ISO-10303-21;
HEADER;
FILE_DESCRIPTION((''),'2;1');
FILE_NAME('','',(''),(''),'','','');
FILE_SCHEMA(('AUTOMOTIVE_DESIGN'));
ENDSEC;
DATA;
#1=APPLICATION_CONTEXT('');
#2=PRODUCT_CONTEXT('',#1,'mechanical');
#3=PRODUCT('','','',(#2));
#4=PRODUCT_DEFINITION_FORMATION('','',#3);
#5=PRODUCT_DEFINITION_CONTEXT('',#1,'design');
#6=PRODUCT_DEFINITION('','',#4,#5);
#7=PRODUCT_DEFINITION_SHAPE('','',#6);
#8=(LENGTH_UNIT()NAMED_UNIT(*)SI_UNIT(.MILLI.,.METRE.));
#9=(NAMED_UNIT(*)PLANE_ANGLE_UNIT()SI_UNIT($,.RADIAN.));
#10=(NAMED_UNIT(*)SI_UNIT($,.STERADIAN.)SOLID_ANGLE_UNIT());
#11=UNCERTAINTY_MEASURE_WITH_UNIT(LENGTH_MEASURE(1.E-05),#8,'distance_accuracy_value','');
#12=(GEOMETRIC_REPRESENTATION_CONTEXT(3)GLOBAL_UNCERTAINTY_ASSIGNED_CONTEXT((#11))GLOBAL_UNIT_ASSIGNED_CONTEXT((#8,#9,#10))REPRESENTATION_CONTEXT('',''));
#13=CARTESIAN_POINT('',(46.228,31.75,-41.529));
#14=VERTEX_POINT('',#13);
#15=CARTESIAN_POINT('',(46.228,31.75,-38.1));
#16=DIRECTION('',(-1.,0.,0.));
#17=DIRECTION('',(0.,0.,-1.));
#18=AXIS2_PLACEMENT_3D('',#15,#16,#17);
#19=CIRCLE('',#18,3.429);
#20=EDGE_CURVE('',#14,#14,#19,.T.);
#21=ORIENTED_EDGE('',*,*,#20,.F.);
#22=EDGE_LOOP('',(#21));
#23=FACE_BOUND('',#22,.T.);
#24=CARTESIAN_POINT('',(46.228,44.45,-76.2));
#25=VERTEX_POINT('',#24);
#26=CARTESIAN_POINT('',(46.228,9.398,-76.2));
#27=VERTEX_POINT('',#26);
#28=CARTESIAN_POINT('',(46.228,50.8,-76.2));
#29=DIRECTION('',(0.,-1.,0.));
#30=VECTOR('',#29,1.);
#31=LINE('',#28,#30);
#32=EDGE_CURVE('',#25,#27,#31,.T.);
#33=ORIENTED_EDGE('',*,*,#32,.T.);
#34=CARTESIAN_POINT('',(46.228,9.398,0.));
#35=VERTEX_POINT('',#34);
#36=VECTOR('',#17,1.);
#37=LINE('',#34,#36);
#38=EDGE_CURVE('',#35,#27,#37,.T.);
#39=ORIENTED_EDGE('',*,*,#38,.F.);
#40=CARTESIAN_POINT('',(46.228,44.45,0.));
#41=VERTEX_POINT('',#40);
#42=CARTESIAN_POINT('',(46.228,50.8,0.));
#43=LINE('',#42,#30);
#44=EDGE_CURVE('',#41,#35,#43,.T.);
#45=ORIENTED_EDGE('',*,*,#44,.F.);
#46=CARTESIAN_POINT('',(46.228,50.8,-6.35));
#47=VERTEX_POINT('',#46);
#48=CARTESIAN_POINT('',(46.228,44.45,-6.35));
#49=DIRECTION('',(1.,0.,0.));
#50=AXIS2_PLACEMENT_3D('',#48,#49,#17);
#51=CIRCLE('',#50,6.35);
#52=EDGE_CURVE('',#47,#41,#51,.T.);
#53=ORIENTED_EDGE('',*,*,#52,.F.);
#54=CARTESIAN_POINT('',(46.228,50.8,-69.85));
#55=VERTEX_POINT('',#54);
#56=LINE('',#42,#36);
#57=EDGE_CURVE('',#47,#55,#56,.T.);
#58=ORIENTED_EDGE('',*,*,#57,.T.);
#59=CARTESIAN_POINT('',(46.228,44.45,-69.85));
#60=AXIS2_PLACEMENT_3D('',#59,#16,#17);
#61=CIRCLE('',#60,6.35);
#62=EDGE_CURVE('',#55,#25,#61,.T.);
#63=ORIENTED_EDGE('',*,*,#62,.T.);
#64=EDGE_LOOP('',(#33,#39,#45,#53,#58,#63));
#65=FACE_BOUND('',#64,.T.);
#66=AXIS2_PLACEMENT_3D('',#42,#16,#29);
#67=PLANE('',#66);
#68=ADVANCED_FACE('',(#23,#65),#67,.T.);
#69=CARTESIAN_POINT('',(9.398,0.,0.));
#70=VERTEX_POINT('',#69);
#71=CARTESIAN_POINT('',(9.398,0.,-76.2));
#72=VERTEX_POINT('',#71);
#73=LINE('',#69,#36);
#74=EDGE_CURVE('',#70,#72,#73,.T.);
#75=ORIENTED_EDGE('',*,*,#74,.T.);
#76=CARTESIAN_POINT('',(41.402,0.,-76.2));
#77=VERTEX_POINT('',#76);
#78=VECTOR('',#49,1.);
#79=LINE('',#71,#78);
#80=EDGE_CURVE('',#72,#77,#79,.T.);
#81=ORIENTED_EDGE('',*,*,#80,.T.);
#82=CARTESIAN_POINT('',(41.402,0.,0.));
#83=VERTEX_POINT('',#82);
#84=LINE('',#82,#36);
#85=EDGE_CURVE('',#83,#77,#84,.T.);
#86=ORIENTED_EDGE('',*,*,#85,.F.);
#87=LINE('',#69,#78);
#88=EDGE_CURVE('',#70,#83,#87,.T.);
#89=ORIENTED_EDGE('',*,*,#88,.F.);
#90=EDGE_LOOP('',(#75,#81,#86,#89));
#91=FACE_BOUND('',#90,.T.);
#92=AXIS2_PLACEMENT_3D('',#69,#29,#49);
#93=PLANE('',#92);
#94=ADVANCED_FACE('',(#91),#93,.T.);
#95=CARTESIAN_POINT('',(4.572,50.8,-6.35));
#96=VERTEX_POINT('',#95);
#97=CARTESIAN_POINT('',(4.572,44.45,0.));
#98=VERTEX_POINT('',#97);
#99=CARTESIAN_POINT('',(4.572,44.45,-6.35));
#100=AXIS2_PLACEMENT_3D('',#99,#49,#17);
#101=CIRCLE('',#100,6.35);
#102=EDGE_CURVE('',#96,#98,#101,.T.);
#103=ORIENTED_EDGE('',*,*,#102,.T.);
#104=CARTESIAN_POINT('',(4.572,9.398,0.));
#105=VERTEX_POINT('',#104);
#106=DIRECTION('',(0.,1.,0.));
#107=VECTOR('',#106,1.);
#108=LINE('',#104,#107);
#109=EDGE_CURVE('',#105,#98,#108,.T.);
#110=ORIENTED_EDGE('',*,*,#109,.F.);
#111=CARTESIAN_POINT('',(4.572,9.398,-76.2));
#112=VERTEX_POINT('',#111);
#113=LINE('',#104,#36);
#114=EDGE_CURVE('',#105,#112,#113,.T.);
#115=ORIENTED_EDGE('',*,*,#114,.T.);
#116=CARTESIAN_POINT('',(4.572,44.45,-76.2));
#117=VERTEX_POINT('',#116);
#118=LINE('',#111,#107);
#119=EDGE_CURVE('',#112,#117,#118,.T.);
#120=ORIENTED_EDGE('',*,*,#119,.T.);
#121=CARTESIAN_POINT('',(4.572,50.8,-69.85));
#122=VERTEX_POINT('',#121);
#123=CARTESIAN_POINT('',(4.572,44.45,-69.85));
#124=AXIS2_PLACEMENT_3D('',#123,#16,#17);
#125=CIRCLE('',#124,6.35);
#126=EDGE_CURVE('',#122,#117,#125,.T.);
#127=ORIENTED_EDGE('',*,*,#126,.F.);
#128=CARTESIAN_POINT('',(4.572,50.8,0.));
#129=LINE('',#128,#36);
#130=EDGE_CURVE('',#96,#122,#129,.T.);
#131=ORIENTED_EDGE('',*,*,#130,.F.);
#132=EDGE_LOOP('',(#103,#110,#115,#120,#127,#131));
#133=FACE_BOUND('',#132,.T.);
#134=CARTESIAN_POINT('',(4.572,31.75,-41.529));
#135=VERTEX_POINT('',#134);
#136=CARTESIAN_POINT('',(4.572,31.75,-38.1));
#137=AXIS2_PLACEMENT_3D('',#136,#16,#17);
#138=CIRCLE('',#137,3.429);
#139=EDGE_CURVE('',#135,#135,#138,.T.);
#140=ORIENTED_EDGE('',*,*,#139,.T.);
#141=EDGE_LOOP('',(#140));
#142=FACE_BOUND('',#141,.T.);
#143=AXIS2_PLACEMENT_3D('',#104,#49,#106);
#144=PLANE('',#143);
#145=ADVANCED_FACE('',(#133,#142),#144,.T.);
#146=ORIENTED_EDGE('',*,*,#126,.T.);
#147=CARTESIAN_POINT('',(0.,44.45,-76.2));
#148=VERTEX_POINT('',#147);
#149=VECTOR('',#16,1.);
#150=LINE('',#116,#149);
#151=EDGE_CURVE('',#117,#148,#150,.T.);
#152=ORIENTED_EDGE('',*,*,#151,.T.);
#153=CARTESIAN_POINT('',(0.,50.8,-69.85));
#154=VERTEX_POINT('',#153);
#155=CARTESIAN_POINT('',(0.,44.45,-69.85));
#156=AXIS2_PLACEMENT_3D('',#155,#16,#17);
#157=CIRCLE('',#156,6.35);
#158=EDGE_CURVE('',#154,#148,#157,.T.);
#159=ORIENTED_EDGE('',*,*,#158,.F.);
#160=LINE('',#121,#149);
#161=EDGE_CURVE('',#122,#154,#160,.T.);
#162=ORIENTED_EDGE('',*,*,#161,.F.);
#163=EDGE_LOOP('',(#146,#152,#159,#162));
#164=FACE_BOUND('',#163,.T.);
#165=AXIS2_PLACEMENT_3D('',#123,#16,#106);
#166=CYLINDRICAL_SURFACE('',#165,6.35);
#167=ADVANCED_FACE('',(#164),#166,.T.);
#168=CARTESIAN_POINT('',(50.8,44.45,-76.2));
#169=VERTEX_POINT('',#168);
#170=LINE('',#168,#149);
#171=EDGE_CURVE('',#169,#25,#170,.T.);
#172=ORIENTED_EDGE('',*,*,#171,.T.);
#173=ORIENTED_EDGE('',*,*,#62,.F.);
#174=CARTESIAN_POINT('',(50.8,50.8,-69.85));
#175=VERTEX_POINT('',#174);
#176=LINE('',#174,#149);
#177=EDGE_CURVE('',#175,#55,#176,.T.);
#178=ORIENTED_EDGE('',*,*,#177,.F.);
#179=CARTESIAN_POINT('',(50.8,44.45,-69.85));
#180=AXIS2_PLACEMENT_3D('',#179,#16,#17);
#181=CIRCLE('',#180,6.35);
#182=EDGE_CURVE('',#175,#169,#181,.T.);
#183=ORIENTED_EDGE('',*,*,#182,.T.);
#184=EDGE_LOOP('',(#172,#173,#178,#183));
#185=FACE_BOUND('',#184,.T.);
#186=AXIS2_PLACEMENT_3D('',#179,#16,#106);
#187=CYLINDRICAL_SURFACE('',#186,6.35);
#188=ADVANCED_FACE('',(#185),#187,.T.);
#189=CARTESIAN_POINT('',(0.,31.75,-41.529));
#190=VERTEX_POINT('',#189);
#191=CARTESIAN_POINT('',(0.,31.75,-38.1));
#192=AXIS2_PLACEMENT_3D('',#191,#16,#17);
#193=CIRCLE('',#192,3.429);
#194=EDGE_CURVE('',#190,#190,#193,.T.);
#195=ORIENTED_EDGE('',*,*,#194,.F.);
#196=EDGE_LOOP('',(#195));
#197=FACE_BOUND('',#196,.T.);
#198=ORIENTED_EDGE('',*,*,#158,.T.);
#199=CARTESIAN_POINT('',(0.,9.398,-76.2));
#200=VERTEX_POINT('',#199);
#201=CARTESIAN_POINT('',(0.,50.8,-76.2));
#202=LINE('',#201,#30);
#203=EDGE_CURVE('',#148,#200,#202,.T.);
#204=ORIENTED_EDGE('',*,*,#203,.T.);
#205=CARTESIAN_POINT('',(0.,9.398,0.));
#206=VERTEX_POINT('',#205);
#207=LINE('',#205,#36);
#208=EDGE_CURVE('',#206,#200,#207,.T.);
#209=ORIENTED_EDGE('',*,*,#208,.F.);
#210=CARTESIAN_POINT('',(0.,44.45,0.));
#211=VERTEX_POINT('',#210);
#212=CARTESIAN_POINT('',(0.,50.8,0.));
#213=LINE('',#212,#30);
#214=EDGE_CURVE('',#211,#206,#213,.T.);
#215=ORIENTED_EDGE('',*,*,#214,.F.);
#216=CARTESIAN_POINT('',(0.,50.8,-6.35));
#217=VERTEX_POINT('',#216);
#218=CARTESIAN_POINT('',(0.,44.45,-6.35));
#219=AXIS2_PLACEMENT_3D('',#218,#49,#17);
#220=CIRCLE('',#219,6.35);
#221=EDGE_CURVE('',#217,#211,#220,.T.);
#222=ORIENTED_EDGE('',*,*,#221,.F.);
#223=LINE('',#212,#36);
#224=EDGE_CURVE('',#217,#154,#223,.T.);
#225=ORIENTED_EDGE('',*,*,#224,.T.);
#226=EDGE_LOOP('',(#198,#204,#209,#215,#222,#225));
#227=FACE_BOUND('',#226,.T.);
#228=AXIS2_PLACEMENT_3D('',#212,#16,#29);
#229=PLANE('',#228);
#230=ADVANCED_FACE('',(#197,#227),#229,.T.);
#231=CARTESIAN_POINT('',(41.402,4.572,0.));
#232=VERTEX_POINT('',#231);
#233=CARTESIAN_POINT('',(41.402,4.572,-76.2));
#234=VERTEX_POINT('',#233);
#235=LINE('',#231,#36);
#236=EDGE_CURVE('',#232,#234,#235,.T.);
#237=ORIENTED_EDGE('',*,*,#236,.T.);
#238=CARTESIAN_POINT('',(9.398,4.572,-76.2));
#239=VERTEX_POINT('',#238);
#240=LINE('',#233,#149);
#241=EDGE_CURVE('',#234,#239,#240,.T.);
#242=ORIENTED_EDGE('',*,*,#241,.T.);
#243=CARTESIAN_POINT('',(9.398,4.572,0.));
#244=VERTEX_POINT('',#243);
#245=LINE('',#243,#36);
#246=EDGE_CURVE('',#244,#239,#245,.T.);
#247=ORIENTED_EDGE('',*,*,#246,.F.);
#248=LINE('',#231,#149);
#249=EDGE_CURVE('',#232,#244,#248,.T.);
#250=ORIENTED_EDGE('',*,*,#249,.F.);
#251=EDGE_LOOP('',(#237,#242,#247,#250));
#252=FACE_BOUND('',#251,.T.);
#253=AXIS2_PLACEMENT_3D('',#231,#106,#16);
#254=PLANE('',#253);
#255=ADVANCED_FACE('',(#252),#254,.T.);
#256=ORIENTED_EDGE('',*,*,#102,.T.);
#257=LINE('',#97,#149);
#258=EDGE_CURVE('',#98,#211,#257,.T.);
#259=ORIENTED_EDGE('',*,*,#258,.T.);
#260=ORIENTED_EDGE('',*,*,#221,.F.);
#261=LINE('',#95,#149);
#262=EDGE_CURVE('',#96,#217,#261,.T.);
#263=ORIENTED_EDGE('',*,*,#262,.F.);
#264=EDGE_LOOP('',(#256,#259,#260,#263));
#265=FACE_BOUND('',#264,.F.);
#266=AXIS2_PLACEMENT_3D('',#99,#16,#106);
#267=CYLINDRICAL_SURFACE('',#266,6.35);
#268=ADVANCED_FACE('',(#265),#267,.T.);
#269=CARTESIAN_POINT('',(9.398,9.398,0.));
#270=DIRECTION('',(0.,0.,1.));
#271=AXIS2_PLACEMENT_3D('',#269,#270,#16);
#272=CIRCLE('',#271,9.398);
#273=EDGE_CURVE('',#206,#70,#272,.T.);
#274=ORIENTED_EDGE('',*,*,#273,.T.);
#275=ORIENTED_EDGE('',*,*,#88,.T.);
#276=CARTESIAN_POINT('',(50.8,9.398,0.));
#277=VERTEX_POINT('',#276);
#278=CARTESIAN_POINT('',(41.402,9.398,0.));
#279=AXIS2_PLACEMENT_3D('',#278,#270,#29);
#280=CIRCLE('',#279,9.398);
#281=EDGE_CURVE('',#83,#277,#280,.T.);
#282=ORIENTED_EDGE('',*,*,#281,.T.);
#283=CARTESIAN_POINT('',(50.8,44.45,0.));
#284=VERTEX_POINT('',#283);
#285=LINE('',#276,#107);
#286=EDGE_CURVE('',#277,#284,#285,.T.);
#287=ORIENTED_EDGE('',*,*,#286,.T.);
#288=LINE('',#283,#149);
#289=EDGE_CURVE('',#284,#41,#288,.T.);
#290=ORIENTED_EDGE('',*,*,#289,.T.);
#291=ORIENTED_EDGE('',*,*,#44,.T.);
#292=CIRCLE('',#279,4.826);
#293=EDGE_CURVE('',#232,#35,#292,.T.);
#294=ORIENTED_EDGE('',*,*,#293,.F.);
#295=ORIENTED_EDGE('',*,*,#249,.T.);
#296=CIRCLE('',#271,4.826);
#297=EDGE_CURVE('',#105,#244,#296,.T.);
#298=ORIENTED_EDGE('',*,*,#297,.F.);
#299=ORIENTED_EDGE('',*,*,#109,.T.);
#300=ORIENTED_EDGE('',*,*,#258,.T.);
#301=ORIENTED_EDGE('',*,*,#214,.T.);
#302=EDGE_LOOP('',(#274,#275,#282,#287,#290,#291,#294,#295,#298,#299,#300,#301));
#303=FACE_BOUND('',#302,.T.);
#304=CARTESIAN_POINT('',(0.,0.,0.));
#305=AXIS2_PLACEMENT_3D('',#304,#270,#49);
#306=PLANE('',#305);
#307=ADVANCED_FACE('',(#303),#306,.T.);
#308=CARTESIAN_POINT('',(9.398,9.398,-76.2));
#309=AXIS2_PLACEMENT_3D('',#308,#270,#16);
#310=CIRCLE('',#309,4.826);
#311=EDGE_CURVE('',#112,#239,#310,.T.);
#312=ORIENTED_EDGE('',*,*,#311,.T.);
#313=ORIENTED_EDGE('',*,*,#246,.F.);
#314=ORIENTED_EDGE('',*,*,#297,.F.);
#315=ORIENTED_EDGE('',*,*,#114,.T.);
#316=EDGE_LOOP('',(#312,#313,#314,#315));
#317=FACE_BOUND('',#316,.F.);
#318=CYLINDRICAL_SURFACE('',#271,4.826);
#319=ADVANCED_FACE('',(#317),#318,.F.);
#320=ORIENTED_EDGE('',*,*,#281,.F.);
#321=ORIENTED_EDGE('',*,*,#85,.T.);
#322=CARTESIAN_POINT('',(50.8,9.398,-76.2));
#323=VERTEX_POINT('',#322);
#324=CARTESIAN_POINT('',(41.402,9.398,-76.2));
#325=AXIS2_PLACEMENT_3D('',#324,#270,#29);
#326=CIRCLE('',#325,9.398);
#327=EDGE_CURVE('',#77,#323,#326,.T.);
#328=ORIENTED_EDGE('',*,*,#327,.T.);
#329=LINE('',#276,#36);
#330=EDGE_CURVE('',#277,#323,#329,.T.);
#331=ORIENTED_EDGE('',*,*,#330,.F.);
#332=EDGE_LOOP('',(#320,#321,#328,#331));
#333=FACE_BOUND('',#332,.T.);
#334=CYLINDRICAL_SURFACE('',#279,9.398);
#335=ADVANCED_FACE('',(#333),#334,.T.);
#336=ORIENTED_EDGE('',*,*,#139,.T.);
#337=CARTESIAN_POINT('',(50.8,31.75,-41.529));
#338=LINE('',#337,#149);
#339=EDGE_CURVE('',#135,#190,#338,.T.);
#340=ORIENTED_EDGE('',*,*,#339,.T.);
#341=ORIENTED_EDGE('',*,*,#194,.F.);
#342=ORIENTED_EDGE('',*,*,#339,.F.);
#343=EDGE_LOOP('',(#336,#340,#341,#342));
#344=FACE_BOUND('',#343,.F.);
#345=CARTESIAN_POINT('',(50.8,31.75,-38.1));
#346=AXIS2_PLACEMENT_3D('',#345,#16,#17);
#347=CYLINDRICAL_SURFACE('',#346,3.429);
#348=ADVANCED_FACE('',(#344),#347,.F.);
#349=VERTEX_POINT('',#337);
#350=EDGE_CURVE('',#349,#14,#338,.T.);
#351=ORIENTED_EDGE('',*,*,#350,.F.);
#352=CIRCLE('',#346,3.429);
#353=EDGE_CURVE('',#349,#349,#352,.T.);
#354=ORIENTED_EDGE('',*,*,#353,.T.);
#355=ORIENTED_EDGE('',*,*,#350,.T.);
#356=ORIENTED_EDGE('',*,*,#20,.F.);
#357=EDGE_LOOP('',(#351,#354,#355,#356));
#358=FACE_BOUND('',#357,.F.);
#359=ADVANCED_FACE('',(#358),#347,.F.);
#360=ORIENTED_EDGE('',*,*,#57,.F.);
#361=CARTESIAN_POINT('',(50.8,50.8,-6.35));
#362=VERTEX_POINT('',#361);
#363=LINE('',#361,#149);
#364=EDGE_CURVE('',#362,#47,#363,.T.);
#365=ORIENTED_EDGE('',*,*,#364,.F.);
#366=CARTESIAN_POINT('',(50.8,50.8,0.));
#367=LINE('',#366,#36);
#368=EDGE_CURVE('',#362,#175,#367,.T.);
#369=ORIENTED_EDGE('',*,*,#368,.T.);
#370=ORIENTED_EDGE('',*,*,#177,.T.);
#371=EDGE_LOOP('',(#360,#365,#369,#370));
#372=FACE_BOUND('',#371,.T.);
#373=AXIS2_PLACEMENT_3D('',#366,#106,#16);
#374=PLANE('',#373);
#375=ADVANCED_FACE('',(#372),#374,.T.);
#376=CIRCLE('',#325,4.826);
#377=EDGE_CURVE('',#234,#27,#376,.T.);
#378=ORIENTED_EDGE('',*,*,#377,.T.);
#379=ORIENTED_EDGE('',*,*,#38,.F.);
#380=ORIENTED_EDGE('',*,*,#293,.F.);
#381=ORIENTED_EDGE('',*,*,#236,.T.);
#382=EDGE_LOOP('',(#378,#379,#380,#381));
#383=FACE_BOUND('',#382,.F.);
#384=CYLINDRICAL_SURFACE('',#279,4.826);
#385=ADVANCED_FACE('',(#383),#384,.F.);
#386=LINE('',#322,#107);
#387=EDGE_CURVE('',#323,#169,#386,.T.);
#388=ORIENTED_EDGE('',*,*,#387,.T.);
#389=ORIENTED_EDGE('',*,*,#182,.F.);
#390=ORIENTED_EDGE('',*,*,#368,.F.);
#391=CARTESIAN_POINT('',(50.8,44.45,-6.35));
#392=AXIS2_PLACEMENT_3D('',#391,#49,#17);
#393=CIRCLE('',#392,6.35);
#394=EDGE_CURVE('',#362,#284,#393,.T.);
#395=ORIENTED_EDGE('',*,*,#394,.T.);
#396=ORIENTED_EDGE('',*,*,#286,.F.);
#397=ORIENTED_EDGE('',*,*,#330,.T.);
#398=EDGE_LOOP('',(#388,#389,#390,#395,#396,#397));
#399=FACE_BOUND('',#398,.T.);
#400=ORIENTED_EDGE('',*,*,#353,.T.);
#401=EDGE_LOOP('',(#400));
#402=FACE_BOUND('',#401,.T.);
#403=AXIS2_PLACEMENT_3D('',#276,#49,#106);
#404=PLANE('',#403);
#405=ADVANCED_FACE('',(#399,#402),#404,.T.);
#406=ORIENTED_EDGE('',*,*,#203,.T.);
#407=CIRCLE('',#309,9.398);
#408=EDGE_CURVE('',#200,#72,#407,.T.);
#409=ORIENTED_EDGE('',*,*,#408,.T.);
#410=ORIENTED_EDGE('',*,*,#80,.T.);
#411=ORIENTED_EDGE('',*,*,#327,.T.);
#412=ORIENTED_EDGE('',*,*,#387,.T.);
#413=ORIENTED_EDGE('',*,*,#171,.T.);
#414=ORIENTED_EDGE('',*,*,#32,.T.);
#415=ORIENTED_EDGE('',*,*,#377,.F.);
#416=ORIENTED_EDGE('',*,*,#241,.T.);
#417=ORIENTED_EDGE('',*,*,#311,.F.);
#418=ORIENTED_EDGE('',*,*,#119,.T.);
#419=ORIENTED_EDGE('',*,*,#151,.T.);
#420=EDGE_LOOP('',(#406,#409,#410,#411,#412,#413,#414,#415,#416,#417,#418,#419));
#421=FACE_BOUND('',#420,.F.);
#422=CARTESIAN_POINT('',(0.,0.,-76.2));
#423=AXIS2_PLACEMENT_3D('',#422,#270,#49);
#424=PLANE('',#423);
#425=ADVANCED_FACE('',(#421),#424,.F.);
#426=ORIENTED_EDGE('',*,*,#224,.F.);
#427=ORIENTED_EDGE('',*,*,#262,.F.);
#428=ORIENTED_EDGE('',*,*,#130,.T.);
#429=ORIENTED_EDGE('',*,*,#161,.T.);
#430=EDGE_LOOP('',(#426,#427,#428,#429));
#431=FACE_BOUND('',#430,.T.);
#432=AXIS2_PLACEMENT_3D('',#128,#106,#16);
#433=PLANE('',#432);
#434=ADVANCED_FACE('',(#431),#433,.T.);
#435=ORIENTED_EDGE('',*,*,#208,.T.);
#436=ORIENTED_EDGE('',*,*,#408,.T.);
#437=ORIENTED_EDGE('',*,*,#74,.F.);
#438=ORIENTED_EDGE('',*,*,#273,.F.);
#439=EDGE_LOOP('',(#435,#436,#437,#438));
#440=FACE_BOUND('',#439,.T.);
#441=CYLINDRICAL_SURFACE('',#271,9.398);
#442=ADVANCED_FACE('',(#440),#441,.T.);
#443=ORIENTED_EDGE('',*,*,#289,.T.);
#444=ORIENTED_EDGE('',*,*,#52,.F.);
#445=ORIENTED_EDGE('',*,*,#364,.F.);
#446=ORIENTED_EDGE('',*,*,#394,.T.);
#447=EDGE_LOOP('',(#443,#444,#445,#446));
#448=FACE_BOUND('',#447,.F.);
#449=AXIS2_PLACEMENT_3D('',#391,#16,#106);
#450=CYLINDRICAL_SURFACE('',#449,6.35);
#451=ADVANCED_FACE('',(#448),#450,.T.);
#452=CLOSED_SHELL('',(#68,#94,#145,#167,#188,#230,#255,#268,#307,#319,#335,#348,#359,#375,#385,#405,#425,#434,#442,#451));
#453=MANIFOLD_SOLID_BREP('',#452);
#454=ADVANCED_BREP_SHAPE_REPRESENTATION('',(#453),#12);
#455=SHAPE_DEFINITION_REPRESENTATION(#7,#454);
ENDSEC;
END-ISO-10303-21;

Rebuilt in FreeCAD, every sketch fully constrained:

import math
import FreeCAD as App
import Part
import Sketcher
Q = App.Units.Quantity


def edges_at(feature, points):
    """Names of the edges that pass closest to the given points."""
    edges = feature.Shape.Edges
    near = lambda p: min(range(len(edges)), key=lambda i: edges[i].distToShape(Part.Vertex(*p))[0])
    return sorted({f"Edge{near(p) + 1}" for p in points})

doc = App.newDocument("Part")
body = doc.addObject("PartDesign::Body", "Body")

# Sketch on XY plane
sketch1 = body.newObject("Sketcher::SketchObject", "Sketch")
sketch1.AttachmentSupport = (doc.getObject("XY_Plane"), [""])
sketch1.MapMode = "FlatFace"
sketch1.addGeometry(Part.ArcOfCircle(Part.Circle(App.Vector(9.4, 9.4, 0), App.Vector(0, 0, 1), 9.4), math.radians(180), math.radians(270)), False)
sketch1.addGeometry(Part.LineSegment(App.Vector(9.4, 0, 0), App.Vector(41.4, 0, 0)), False)
sketch1.addGeometry(Part.ArcOfCircle(Part.Circle(App.Vector(41.4, 9.4, 0), App.Vector(0, 0, 1), 9.4), math.radians(-90), math.radians(0)), False)
sketch1.addGeometry(Part.LineSegment(App.Vector(50.8, 9.4, 0), App.Vector(50.8, 50.8, 0)), False)
sketch1.addGeometry(Part.LineSegment(App.Vector(50.8, 50.8, 0), App.Vector(46.2, 50.8, 0)), False)
sketch1.addGeometry(Part.LineSegment(App.Vector(46.2, 50.8, 0), App.Vector(46.2, 9.4, 0)), False)
sketch1.addGeometry(Part.ArcOfCircle(Part.Circle(App.Vector(41.4, 9.4, 0), App.Vector(0, 0, 1), 4.8), math.radians(-90), math.radians(0)), False)
sketch1.addGeometry(Part.LineSegment(App.Vector(41.4, 4.6, 0), App.Vector(9.4, 4.6, 0)), False)
sketch1.addGeometry(Part.ArcOfCircle(Part.Circle(App.Vector(9.4, 9.4, 0), App.Vector(0, 0, 1), 4.8), math.radians(180), math.radians(270)), False)
sketch1.addGeometry(Part.LineSegment(App.Vector(4.6, 9.4, 0), App.Vector(4.6, 50.8, 0)), False)
sketch1.addGeometry(Part.LineSegment(App.Vector(4.6, 50.8, 0), App.Vector(0, 50.8, 0)), False)
sketch1.addGeometry(Part.LineSegment(App.Vector(0, 50.8, 0), App.Vector(0, 9.4, 0)), False)
sketch1.addConstraint(Sketcher.Constraint("Tangent", 0, 2, 1, 1))
sketch1.addConstraint(Sketcher.Constraint("Tangent", 1, 2, 2, 1))
sketch1.addConstraint(Sketcher.Constraint("Tangent", 2, 2, 3, 1))
sketch1.addConstraint(Sketcher.Constraint("Coincident", 3, 2, 4, 1))
sketch1.addConstraint(Sketcher.Constraint("Coincident", 4, 2, 5, 1))
sketch1.addConstraint(Sketcher.Constraint("Tangent", 5, 2, 6, 2))
sketch1.addConstraint(Sketcher.Constraint("Tangent", 6, 1, 7, 1))
sketch1.addConstraint(Sketcher.Constraint("Tangent", 7, 2, 8, 2))
sketch1.addConstraint(Sketcher.Constraint("Tangent", 8, 1, 9, 1))
sketch1.addConstraint(Sketcher.Constraint("Coincident", 9, 2, 10, 1))
sketch1.addConstraint(Sketcher.Constraint("Coincident", 10, 2, 11, 1))
sketch1.addConstraint(Sketcher.Constraint("Tangent", 11, 2, 0, 1))
sketch1.addConstraint(Sketcher.Constraint("Horizontal", 1))
sketch1.addConstraint(Sketcher.Constraint("Vertical", 3))
sketch1.addConstraint(Sketcher.Constraint("Horizontal", 4))
sketch1.addConstraint(Sketcher.Constraint("Vertical", 5))
sketch1.addConstraint(Sketcher.Constraint("Horizontal", 7))
sketch1.addConstraint(Sketcher.Constraint("Vertical", 9))
sketch1.addConstraint(Sketcher.Constraint("Horizontal", 10))
sketch1.addConstraint(Sketcher.Constraint("Vertical", 11))
sketch1.addConstraint(Sketcher.Constraint("Coincident", 6, 3, 2, 3))
sketch1.addConstraint(Sketcher.Constraint("Coincident", 8, 3, 0, 3))
sketch1.addConstraint(Sketcher.Constraint("Equal", 0, 2))
sketch1.addConstraint(Sketcher.Constraint("PointOnObject", 0, 2, -1))
sketch1.addConstraint(Sketcher.Constraint("PointOnObject", 10, 2, -2))
sketch1.addConstraint(Sketcher.Constraint("Horizontal", 4, 2, 9, 2))
sketch1.addConstraint(Sketcher.Constraint("Radius", 0, Q("0.37 in")))
sketch1.addConstraint(Sketcher.Constraint("Radius", 6, Q("0.19 in")))
sketch1.addConstraint(Sketcher.Constraint("DistanceX", -1, 1, 2, 2, Q("2 in")))
sketch1.addConstraint(Sketcher.Constraint("DistanceY", -1, 1, 3, 2, Q("2 in")))
pad1 = body.newObject("PartDesign::Pad", "Pad")
pad1.Profile = sketch1
pad1.Length = Q("3 in")
pad1.Reversed = True
doc.recompute()

fillet = body.newObject("PartDesign::Fillet", "Fillet")
fillet.Base = (pad1, edges_at(pad1, [
    (2.286, 50.8, 0),
    (48.514, 50.8, 0),
    (2.286, 50.8, -76.2),
    (48.514, 50.8, -76.2),
]))
fillet.Radius = Q("0.25 in")

# Sketch on YZ plane
sketch2 = body.newObject("Sketcher::SketchObject", "Sketch001")
sketch2.AttachmentSupport = (doc.getObject("YZ_Plane"), [""])
sketch2.MapMode = "FlatFace"
sketch2.AttachmentOffset = App.Placement(App.Vector(0, 0, 2 * 25.4), App.Rotation())
sketch2.addGeometry(Part.Circle(App.Vector(31.8, -38.1, 0), App.Vector(0, 0, 1), 3.4), False)
sketch2.addConstraint(Sketcher.Constraint("Diameter", 0, Q("0.27 in")))
sketch2.addConstraint(Sketcher.Constraint("DistanceY", 0, 3, -1, 1, Q("1.5 in")))
sketch2.addConstraint(Sketcher.Constraint("DistanceX", -1, 1, 0, 3, Q("1.25 in")))
doc.recompute()
hole = body.newObject("PartDesign::Hole", "Hole")
hole.Profile = sketch2
hole.ThreadType = "None"
hole.Diameter = Q("0.27 in")
hole.DepthType = "ThroughAll"

doc.recompute()
